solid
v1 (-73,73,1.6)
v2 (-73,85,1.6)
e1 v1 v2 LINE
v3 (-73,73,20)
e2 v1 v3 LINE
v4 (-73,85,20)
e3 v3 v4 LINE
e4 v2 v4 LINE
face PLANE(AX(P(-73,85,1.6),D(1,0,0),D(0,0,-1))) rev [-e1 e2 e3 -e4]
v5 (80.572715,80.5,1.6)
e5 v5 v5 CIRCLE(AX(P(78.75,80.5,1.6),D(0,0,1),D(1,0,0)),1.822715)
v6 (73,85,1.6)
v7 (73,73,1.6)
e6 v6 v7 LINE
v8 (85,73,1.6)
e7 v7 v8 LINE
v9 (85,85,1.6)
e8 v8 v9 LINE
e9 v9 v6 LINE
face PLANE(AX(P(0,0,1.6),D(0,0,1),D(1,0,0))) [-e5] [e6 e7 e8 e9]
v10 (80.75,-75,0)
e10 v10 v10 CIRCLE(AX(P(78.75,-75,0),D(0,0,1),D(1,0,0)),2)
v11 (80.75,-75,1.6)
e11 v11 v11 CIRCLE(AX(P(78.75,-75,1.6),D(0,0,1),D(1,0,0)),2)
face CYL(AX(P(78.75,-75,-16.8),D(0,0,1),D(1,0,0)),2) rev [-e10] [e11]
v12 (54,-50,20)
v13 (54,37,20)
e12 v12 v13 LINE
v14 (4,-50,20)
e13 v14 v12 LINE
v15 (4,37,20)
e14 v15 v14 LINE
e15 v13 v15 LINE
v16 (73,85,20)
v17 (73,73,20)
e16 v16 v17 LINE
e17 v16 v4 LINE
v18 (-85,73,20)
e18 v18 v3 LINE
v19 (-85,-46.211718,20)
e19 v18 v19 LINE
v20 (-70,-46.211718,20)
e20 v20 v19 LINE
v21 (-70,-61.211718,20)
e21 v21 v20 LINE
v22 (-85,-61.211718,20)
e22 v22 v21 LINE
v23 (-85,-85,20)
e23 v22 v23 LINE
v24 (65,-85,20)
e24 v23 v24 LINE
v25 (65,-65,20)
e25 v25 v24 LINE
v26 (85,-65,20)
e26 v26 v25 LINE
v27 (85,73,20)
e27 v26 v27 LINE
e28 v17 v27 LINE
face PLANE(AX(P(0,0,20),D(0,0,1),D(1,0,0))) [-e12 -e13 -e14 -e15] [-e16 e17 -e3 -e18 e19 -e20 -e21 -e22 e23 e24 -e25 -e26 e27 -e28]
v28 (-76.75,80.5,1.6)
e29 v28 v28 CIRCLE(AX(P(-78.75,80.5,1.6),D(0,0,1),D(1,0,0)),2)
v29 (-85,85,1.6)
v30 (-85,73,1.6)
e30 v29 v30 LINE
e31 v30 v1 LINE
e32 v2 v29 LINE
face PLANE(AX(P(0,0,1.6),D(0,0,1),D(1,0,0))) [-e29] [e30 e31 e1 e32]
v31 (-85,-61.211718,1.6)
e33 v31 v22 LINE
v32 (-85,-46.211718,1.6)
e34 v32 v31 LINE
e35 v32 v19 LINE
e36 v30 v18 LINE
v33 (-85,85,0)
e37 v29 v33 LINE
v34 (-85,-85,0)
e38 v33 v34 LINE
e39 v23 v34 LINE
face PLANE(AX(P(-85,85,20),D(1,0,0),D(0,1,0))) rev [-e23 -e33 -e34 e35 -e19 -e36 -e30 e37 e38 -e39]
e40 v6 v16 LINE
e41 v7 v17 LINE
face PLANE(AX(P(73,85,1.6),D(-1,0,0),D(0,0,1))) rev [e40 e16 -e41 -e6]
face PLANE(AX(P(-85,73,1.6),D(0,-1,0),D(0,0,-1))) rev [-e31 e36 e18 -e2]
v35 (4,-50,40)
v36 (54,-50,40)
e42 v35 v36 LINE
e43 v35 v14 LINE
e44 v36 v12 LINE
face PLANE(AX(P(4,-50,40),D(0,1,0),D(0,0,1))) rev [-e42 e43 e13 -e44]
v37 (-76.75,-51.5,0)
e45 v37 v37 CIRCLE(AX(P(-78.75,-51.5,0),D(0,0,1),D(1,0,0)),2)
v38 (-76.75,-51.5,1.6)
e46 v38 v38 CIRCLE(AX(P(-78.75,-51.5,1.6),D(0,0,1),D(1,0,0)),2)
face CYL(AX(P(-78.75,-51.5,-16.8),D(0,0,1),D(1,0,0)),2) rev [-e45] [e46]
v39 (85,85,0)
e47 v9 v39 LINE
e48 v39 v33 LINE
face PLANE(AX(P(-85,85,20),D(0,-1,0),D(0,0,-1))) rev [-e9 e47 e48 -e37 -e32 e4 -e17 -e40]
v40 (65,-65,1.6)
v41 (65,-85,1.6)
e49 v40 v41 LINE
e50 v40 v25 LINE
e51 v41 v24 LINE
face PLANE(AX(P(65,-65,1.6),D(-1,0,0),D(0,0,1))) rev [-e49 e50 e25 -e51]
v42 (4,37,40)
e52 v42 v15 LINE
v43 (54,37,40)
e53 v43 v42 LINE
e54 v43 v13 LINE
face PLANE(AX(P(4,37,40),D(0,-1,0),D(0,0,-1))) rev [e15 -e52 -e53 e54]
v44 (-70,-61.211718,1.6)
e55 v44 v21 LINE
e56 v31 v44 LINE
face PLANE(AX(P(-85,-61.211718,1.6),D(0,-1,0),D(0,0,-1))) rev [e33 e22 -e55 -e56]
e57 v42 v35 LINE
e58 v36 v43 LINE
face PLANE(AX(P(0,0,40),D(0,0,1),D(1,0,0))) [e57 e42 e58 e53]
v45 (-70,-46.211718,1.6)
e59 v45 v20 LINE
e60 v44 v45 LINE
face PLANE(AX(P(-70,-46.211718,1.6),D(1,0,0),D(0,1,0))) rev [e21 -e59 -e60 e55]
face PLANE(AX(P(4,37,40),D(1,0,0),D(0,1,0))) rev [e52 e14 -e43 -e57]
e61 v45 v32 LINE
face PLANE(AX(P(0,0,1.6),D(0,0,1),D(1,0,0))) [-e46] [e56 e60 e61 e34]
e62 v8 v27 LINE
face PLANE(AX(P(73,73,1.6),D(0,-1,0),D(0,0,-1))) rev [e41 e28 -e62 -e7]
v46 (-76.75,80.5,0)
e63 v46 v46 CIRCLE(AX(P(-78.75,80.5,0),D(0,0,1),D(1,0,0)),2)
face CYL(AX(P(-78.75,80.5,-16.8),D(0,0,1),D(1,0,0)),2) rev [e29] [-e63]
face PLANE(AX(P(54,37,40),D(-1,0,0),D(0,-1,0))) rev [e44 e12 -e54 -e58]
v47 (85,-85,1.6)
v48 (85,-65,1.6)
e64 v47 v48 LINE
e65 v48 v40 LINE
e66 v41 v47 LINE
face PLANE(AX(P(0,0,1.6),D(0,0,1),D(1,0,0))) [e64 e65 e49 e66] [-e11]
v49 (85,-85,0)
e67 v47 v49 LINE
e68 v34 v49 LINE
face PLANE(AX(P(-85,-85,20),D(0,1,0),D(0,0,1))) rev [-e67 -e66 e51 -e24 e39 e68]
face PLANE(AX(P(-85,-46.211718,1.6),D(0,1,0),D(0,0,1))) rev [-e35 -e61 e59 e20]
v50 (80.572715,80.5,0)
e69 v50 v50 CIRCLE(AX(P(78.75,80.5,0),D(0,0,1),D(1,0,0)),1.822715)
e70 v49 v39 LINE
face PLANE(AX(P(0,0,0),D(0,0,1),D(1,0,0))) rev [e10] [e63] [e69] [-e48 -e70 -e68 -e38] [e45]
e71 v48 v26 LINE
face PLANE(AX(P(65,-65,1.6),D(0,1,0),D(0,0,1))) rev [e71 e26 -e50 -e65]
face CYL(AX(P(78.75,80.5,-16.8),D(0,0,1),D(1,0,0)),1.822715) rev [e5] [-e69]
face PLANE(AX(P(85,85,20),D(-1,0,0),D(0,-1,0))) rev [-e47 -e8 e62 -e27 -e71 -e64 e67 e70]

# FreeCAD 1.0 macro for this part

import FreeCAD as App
import Part
import Sketcher

V = App.Vector
Q = App.Units.Quantity

doc = App.newDocument("Part")
body = doc.addObject("PartDesign::Body", "Body")

sketch1 = body.newObject("Sketcher::SketchObject", "Sketch")
sketch1.AttachmentSupport = (doc.getObject("XY_Plane"), [""])
sketch1.MapMode = "FlatFace"
sketch1.addGeometry([
    Part.LineSegment(V(-85, 85, 0), V(-85, -85, 0)),
    Part.LineSegment(V(-85, -85, 0), V(85, -85, 0)),
    Part.LineSegment(V(85, -85, 0), V(85, 85, 0)),
    Part.LineSegment(V(85, 85, 0), V(-85, 85, 0)),
], False)
sketch1.addConstraint([
    Sketcher.Constraint("Coincident", 0, 2, 1, 1),
    Sketcher.Constraint("Coincident", 1, 2, 2, 1),
    Sketcher.Constraint("Coincident", 2, 2, 3, 1),
    Sketcher.Constraint("Coincident", 3, 2, 0, 1),
    Sketcher.Constraint("Vertical", 0),
    Sketcher.Constraint("Horizontal", 1),
    Sketcher.Constraint("Vertical", 2),
    Sketcher.Constraint("Horizontal", 3),
    Sketcher.Constraint("Symmetric", 0, 2, 2, 2, -1, 1),
    Sketcher.Constraint("Equal", 3, 0),
    Sketcher.Constraint("DistanceX", 1, 1, 1, 2, Q("170 mm")),
])
pad1 = body.newObject("PartDesign::Pad", "Pad")
pad1.Profile = sketch1
pad1.Length = 20

sketch2 = body.newObject("Sketcher::SketchObject", "Sketch001")
sketch2.AttachmentSupport = (doc.getObject("XY_Plane"), [""])
sketch2.MapMode = "FlatFace"
sketch2.AttachmentOffset = App.Placement(V(0, 0, 20), App.Rotation())
sketch2.addGeometry([
    Part.LineSegment(V(65, -65, 0), V(65, -85, 0)),
    Part.LineSegment(V(65, -85, 0), V(85, -85, 0)),
    Part.LineSegment(V(85, -85, 0), V(85, -65, 0)),
    Part.LineSegment(V(85, -65, 0), V(65, -65, 0)),
    Part.LineSegment(V(73, 85, 0), V(73, 73, 0)),
    Part.LineSegment(V(73, 73, 0), V(85, 73, 0)),
    Part.LineSegment(V(85, 73, 0), V(85, 85, 0)),
    Part.LineSegment(V(85, 85, 0), V(73, 85, 0)),
    Part.LineSegment(V(-85, 85, 0), V(-85, 73, 0)),
    Part.LineSegment(V(-85, 73, 0), V(-73, 73, 0)),
    Part.LineSegment(V(-73, 73, 0), V(-73, 85, 0)),
    Part.LineSegment(V(-73, 85, 0), V(-85, 85, 0)),
    Part.LineSegment(V(-85, -46.211718, 0), V(-85, -61.211718, 0)),
    Part.LineSegment(V(-85, -61.211718, 0), V(-70, -61.211718, 0)),
    Part.LineSegment(V(-70, -61.211718, 0), V(-70, -46.211718, 0)),
    Part.LineSegment(V(-70, -46.211718, 0), V(-85, -46.211718, 0)),
], False)
sketch2.addConstraint([
    Sketcher.Constraint("Coincident", 0, 2, 1, 1),
    Sketcher.Constraint("Coincident", 1, 2, 2, 1),
    Sketcher.Constraint("Coincident", 2, 2, 3, 1),
    Sketcher.Constraint("Coincident", 3, 2, 0, 1),
    Sketcher.Constraint("Coincident", 4, 2, 5, 1),
    Sketcher.Constraint("Coincident", 5, 2, 6, 1),
    Sketcher.Constraint("Coincident", 6, 2, 7, 1),
    Sketcher.Constraint("Coincident", 7, 2, 4, 1),
    Sketcher.Constraint("Coincident", 8, 2, 9, 1),
    Sketcher.Constraint("Coincident", 9, 2, 10, 1),
    Sketcher.Constraint("Coincident", 10, 2, 11, 1),
    Sketcher.Constraint("Coincident", 11, 2, 8, 1),
    Sketcher.Constraint("Coincident", 12, 2, 13, 1),
    Sketcher.Constraint("Coincident", 13, 2, 14, 1),
    Sketcher.Constraint("Coincident", 14, 2, 15, 1),
    Sketcher.Constraint("Coincident", 15, 2, 12, 1),
    Sketcher.Constraint("Vertical", 0),
    Sketcher.Constraint("Horizontal", 1),
    Sketcher.Constraint("Vertical", 2),
    Sketcher.Constraint("Horizontal", 3),
    Sketcher.Constraint("Vertical", 4),
    Sketcher.Constraint("Horizontal", 5),
    Sketcher.Constraint("Vertical", 6),
    Sketcher.Constraint("Horizontal", 7),
    Sketcher.Constraint("Vertical", 8),
    Sketcher.Constraint("Horizontal", 9),
    Sketcher.Constraint("Vertical", 10),
    Sketcher.Constraint("Horizontal", 11),
    Sketcher.Constraint("Vertical", 12),
    Sketcher.Constraint("Horizontal", 13),
    Sketcher.Constraint("Vertical", 14),
    Sketcher.Constraint("Horizontal", 15),
    Sketcher.Constraint("Symmetric", 1, 2, 11, 2, -1, 1),
    Sketcher.Constraint("Symmetric", 5, 2, 8, 2, -2),
    Sketcher.Constraint("Symmetric", 7, 2, 10, 2, -2),
    Sketcher.Constraint("Vertical", 11, 2, 12, 2),
    Sketcher.Constraint("Equal", 3, 0),
    Sketcher.Constraint("Equal", 11, 4),
    Sketcher.Constraint("Equal", 15, 12),
    Sketcher.Constraint("DistanceX", 1, 1, 1, 2, Q("20 mm")),
    Sketcher.Constraint("DistanceX", 5, 1, 5, 2, Q("12 mm")),
    Sketcher.Constraint("DistanceX", 13, 1, 13, 2, Q("15 mm")),
    Sketcher.Constraint("DistanceX", -1, 1, 0, 2, Q("65 mm")),
    Sketcher.Constraint("DistanceY", 0, 2, -1, 1, Q("85 mm")),
    Sketcher.Constraint("DistanceY", 12, 2, -1, 1, Q("61.211718 mm")),
])
pocket1 = body.newObject("PartDesign::Pocket", "Pocket")
pocket1.Profile = sketch2
pocket1.Length = 18.4

sketch3 = body.newObject("Sketcher::SketchObject", "Sketch002")
sketch3.AttachmentSupport = (doc.getObject("XY_Plane"), [""])
sketch3.MapMode = "FlatFace"
sketch3.AttachmentOffset = App.Placement(V(0, 0, 1.6), App.Rotation())
sketch3.addGeometry([
    Part.Circle(V(78.75, -75, 0), V(0, 0, 1), 2),
    Part.Circle(V(78.75, 80.5, 0), V(0, 0, 1), 1.822715),
    Part.Circle(V(-78.75, 80.5, 0), V(0, 0, 1), 2),
    Part.Circle(V(-78.75, -51.5, 0), V(0, 0, 1), 2),
], False)
sketch3.addConstraint([
    Sketcher.Constraint("Equal", 0, 2),
    Sketcher.Constraint("Equal", 2, 3),
    Sketcher.Constraint("Symmetric", 1, 3, 2, 3, -2),
    Sketcher.Constraint("Vertical", 0, 3, 1, 3),
    Sketcher.Constraint("Vertical", 2, 3, 3, 3),
    Sketcher.Constraint("Diameter", 0, Q("4 mm")),
    Sketcher.Constraint("DistanceY", 0, 3, -1, 1, Q("75 mm")),
    Sketcher.Constraint("DistanceY", 3, 3, 2, 3, Q("132 mm")),
    Sketcher.Constraint("DistanceY", -1, 1, 1, 3, Q("80.5 mm")),
    Sketcher.Constraint("DistanceX", 2, 3, 1, 3, Q("157.5 mm")),
    Sketcher.Constraint("Diameter", 1, Q("3.64543 mm")),
])
pocket2 = body.newObject("PartDesign::Pocket", "Pocket001")
pocket2.Profile = sketch3
pocket2.Length = 18.4

sketch4 = body.newObject("Sketcher::SketchObject", "Sketch003")
sketch4.AttachmentSupport = (doc.getObject("XY_Plane"), [""])
sketch4.MapMode = "FlatFace"
sketch4.AttachmentOffset = App.Placement(V(0, 0, 20), App.Rotation())
sketch4.addGeometry([
    Part.LineSegment(V(4, 37, 0), V(4, -50, 0)),
    Part.LineSegment(V(4, -50, 0), V(54, -50, 0)),
    Part.LineSegment(V(54, -50, 0), V(54, 37, 0)),
    Part.LineSegment(V(54, 37, 0), V(4, 37, 0)),
], False)
sketch4.addConstraint([
    Sketcher.Constraint("Coincident", 0, 2, 1, 1),
    Sketcher.Constraint("Coincident", 1, 2, 2, 1),
    Sketcher.Constraint("Coincident", 2, 2, 3, 1),
    Sketcher.Constraint("Coincident", 3, 2, 0, 1),
    Sketcher.Constraint("Vertical", 0),
    Sketcher.Constraint("Horizontal", 1),
    Sketcher.Constraint("Vertical", 2),
    Sketcher.Constraint("Horizontal", 3),
    Sketcher.Constraint("DistanceX", 1, 1, 1, 2, Q("50 mm")),
    Sketcher.Constraint("DistanceY", 0, 2, 0, 1, Q("87 mm")),
    Sketcher.Constraint("DistanceX", -1, 1, 0, 2, Q("4 mm")),
    Sketcher.Constraint("DistanceY", 0, 2, -1, 1, Q("50 mm")),
])
pad2 = body.newObject("PartDesign::Pad", "Pad001")
pad2.Profile = sketch4
pad2.Length = 20

doc.recompute()
